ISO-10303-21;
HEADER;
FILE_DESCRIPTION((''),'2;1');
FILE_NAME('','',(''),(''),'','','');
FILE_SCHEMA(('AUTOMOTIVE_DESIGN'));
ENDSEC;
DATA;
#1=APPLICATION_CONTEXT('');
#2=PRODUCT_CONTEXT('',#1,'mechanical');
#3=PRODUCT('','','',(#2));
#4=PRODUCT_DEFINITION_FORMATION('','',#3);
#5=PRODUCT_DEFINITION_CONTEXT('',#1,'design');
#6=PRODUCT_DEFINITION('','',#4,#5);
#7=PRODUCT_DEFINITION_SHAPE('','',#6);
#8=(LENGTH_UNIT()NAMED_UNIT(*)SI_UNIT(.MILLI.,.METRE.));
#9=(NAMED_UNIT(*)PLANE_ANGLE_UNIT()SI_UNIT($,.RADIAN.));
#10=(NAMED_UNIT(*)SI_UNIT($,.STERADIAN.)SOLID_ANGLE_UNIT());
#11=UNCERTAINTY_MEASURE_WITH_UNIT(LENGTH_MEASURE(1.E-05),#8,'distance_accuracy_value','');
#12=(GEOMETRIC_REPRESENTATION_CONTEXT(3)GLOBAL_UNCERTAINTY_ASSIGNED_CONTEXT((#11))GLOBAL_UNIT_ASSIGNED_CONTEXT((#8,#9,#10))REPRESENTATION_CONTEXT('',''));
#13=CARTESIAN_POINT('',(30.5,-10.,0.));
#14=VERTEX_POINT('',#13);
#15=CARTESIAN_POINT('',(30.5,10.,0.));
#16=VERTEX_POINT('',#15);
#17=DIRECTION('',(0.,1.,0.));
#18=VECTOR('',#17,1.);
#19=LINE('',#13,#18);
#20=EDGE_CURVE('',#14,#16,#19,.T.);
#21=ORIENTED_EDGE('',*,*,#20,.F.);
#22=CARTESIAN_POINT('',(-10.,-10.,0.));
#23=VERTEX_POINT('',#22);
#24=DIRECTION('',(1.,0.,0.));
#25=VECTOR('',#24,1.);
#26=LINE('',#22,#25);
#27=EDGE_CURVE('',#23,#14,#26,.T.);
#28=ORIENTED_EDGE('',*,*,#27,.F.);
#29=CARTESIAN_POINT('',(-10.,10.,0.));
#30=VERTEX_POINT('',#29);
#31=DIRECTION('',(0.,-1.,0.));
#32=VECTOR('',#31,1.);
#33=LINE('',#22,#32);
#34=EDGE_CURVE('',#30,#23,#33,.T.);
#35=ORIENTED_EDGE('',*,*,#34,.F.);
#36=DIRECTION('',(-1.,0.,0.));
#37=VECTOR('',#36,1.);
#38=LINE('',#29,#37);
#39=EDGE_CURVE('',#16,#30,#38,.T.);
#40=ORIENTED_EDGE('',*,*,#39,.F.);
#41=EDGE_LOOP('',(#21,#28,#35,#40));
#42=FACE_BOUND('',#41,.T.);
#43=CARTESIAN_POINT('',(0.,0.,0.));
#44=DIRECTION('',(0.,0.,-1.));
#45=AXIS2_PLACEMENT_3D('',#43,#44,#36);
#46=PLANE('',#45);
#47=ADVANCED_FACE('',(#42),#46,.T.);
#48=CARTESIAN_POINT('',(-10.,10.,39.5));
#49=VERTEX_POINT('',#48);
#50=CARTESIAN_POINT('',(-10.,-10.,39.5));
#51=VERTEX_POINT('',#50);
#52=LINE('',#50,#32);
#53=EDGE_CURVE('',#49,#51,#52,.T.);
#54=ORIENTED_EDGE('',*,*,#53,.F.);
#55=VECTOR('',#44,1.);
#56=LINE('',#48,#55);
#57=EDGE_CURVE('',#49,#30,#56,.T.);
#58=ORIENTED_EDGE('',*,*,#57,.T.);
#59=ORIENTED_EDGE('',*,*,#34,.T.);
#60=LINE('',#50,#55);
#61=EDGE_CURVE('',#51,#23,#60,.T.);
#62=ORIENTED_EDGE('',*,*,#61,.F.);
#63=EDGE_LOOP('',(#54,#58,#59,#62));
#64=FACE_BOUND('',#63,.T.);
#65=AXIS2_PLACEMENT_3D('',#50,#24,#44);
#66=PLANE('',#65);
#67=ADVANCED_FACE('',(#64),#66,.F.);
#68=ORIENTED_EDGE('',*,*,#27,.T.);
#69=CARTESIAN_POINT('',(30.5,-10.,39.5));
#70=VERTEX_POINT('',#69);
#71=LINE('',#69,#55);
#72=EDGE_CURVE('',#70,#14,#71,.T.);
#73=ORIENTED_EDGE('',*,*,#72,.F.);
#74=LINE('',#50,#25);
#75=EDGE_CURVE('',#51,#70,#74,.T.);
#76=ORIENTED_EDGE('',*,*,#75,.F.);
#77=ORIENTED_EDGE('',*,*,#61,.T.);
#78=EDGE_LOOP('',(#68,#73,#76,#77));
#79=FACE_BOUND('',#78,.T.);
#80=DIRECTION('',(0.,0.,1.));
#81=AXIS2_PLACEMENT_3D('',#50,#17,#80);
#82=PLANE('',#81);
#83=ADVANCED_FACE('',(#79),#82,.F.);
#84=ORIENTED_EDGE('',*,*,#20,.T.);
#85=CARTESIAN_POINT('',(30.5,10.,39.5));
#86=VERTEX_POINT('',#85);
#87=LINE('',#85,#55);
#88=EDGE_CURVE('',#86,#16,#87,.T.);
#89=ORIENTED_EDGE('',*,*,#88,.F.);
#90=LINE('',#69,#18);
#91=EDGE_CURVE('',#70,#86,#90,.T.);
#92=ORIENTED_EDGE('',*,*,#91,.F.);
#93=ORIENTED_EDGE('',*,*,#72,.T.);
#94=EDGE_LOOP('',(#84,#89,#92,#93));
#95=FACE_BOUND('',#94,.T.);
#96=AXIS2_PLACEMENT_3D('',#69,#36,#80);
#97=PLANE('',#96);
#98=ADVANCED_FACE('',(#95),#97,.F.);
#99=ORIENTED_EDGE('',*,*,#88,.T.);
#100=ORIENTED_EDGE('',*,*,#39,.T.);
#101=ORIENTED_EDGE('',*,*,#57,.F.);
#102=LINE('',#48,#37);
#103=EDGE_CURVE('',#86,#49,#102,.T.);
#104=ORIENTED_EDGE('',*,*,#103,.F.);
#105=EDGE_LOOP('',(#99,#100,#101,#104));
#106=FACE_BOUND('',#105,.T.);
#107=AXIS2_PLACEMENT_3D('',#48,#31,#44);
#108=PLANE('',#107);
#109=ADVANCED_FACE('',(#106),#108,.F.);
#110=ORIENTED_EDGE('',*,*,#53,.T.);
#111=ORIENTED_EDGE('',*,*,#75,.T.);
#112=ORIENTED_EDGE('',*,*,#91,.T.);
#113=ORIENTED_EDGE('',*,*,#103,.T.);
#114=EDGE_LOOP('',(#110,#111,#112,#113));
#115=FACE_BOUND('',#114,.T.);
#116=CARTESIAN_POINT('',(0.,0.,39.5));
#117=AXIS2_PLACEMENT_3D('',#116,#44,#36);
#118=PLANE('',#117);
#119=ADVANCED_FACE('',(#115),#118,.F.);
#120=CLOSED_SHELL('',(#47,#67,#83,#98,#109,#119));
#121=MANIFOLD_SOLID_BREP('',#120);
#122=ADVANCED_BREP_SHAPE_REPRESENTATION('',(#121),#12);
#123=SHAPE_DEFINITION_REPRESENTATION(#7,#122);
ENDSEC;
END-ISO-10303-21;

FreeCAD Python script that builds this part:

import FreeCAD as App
import Part
import Sketcher
from FreeCAD import Vector


def add_polygon(sketch, points):
    """Adds a closed chain of lines whose ends are joined by coincident constraints."""
    first, n = sketch.GeometryCount, len(points)
    for a, b in zip(points, points[1:] + points[:1]):
        sketch.addGeometry(Part.LineSegment(App.Vector(*a, 0), App.Vector(*b, 0)), False)
    for i in range(n):
        sketch.addConstraint(Sketcher.Constraint("Coincident", first + i, 2, first + (i + 1) % n, 1))

doc = App.newDocument("Part")
body = doc.addObject("PartDesign::Body", "Body")

# Sketch on XY plane
sketch1 = body.newObject("Sketcher::SketchObject", "Sketch")
sketch1.AttachmentSupport = (doc.getObject("XY_Plane"), [""])
sketch1.MapMode = "FlatFace"
add_polygon(sketch1, [(-10, 10), (-10, -10), (30, -10), (30, 10)])  # lines 0-3
sketch1.addConstraint([
    Sketcher.Constraint("Vertical", 0),
    Sketcher.Constraint("Horizontal", 1),
    Sketcher.Constraint("Vertical", 2),
    Sketcher.Constraint("Horizontal", 3),
    Sketcher.Constraint("DistanceY", 0, 2, 0, 1, 20.0),
    Sketcher.Constraint("DistanceX", 1, 1, 1, 2, 40.5),
    Sketcher.Constraint("DistanceX", 0, 2, -1, 1, 10.0),
    Sketcher.Constraint("DistanceY", 0, 2, -1, 1, 10.0),
])
pad1 = body.newObject("PartDesign::Pad", "Pad")
pad1.Profile = sketch1
pad1.Length = 39.5

doc.recompute()
